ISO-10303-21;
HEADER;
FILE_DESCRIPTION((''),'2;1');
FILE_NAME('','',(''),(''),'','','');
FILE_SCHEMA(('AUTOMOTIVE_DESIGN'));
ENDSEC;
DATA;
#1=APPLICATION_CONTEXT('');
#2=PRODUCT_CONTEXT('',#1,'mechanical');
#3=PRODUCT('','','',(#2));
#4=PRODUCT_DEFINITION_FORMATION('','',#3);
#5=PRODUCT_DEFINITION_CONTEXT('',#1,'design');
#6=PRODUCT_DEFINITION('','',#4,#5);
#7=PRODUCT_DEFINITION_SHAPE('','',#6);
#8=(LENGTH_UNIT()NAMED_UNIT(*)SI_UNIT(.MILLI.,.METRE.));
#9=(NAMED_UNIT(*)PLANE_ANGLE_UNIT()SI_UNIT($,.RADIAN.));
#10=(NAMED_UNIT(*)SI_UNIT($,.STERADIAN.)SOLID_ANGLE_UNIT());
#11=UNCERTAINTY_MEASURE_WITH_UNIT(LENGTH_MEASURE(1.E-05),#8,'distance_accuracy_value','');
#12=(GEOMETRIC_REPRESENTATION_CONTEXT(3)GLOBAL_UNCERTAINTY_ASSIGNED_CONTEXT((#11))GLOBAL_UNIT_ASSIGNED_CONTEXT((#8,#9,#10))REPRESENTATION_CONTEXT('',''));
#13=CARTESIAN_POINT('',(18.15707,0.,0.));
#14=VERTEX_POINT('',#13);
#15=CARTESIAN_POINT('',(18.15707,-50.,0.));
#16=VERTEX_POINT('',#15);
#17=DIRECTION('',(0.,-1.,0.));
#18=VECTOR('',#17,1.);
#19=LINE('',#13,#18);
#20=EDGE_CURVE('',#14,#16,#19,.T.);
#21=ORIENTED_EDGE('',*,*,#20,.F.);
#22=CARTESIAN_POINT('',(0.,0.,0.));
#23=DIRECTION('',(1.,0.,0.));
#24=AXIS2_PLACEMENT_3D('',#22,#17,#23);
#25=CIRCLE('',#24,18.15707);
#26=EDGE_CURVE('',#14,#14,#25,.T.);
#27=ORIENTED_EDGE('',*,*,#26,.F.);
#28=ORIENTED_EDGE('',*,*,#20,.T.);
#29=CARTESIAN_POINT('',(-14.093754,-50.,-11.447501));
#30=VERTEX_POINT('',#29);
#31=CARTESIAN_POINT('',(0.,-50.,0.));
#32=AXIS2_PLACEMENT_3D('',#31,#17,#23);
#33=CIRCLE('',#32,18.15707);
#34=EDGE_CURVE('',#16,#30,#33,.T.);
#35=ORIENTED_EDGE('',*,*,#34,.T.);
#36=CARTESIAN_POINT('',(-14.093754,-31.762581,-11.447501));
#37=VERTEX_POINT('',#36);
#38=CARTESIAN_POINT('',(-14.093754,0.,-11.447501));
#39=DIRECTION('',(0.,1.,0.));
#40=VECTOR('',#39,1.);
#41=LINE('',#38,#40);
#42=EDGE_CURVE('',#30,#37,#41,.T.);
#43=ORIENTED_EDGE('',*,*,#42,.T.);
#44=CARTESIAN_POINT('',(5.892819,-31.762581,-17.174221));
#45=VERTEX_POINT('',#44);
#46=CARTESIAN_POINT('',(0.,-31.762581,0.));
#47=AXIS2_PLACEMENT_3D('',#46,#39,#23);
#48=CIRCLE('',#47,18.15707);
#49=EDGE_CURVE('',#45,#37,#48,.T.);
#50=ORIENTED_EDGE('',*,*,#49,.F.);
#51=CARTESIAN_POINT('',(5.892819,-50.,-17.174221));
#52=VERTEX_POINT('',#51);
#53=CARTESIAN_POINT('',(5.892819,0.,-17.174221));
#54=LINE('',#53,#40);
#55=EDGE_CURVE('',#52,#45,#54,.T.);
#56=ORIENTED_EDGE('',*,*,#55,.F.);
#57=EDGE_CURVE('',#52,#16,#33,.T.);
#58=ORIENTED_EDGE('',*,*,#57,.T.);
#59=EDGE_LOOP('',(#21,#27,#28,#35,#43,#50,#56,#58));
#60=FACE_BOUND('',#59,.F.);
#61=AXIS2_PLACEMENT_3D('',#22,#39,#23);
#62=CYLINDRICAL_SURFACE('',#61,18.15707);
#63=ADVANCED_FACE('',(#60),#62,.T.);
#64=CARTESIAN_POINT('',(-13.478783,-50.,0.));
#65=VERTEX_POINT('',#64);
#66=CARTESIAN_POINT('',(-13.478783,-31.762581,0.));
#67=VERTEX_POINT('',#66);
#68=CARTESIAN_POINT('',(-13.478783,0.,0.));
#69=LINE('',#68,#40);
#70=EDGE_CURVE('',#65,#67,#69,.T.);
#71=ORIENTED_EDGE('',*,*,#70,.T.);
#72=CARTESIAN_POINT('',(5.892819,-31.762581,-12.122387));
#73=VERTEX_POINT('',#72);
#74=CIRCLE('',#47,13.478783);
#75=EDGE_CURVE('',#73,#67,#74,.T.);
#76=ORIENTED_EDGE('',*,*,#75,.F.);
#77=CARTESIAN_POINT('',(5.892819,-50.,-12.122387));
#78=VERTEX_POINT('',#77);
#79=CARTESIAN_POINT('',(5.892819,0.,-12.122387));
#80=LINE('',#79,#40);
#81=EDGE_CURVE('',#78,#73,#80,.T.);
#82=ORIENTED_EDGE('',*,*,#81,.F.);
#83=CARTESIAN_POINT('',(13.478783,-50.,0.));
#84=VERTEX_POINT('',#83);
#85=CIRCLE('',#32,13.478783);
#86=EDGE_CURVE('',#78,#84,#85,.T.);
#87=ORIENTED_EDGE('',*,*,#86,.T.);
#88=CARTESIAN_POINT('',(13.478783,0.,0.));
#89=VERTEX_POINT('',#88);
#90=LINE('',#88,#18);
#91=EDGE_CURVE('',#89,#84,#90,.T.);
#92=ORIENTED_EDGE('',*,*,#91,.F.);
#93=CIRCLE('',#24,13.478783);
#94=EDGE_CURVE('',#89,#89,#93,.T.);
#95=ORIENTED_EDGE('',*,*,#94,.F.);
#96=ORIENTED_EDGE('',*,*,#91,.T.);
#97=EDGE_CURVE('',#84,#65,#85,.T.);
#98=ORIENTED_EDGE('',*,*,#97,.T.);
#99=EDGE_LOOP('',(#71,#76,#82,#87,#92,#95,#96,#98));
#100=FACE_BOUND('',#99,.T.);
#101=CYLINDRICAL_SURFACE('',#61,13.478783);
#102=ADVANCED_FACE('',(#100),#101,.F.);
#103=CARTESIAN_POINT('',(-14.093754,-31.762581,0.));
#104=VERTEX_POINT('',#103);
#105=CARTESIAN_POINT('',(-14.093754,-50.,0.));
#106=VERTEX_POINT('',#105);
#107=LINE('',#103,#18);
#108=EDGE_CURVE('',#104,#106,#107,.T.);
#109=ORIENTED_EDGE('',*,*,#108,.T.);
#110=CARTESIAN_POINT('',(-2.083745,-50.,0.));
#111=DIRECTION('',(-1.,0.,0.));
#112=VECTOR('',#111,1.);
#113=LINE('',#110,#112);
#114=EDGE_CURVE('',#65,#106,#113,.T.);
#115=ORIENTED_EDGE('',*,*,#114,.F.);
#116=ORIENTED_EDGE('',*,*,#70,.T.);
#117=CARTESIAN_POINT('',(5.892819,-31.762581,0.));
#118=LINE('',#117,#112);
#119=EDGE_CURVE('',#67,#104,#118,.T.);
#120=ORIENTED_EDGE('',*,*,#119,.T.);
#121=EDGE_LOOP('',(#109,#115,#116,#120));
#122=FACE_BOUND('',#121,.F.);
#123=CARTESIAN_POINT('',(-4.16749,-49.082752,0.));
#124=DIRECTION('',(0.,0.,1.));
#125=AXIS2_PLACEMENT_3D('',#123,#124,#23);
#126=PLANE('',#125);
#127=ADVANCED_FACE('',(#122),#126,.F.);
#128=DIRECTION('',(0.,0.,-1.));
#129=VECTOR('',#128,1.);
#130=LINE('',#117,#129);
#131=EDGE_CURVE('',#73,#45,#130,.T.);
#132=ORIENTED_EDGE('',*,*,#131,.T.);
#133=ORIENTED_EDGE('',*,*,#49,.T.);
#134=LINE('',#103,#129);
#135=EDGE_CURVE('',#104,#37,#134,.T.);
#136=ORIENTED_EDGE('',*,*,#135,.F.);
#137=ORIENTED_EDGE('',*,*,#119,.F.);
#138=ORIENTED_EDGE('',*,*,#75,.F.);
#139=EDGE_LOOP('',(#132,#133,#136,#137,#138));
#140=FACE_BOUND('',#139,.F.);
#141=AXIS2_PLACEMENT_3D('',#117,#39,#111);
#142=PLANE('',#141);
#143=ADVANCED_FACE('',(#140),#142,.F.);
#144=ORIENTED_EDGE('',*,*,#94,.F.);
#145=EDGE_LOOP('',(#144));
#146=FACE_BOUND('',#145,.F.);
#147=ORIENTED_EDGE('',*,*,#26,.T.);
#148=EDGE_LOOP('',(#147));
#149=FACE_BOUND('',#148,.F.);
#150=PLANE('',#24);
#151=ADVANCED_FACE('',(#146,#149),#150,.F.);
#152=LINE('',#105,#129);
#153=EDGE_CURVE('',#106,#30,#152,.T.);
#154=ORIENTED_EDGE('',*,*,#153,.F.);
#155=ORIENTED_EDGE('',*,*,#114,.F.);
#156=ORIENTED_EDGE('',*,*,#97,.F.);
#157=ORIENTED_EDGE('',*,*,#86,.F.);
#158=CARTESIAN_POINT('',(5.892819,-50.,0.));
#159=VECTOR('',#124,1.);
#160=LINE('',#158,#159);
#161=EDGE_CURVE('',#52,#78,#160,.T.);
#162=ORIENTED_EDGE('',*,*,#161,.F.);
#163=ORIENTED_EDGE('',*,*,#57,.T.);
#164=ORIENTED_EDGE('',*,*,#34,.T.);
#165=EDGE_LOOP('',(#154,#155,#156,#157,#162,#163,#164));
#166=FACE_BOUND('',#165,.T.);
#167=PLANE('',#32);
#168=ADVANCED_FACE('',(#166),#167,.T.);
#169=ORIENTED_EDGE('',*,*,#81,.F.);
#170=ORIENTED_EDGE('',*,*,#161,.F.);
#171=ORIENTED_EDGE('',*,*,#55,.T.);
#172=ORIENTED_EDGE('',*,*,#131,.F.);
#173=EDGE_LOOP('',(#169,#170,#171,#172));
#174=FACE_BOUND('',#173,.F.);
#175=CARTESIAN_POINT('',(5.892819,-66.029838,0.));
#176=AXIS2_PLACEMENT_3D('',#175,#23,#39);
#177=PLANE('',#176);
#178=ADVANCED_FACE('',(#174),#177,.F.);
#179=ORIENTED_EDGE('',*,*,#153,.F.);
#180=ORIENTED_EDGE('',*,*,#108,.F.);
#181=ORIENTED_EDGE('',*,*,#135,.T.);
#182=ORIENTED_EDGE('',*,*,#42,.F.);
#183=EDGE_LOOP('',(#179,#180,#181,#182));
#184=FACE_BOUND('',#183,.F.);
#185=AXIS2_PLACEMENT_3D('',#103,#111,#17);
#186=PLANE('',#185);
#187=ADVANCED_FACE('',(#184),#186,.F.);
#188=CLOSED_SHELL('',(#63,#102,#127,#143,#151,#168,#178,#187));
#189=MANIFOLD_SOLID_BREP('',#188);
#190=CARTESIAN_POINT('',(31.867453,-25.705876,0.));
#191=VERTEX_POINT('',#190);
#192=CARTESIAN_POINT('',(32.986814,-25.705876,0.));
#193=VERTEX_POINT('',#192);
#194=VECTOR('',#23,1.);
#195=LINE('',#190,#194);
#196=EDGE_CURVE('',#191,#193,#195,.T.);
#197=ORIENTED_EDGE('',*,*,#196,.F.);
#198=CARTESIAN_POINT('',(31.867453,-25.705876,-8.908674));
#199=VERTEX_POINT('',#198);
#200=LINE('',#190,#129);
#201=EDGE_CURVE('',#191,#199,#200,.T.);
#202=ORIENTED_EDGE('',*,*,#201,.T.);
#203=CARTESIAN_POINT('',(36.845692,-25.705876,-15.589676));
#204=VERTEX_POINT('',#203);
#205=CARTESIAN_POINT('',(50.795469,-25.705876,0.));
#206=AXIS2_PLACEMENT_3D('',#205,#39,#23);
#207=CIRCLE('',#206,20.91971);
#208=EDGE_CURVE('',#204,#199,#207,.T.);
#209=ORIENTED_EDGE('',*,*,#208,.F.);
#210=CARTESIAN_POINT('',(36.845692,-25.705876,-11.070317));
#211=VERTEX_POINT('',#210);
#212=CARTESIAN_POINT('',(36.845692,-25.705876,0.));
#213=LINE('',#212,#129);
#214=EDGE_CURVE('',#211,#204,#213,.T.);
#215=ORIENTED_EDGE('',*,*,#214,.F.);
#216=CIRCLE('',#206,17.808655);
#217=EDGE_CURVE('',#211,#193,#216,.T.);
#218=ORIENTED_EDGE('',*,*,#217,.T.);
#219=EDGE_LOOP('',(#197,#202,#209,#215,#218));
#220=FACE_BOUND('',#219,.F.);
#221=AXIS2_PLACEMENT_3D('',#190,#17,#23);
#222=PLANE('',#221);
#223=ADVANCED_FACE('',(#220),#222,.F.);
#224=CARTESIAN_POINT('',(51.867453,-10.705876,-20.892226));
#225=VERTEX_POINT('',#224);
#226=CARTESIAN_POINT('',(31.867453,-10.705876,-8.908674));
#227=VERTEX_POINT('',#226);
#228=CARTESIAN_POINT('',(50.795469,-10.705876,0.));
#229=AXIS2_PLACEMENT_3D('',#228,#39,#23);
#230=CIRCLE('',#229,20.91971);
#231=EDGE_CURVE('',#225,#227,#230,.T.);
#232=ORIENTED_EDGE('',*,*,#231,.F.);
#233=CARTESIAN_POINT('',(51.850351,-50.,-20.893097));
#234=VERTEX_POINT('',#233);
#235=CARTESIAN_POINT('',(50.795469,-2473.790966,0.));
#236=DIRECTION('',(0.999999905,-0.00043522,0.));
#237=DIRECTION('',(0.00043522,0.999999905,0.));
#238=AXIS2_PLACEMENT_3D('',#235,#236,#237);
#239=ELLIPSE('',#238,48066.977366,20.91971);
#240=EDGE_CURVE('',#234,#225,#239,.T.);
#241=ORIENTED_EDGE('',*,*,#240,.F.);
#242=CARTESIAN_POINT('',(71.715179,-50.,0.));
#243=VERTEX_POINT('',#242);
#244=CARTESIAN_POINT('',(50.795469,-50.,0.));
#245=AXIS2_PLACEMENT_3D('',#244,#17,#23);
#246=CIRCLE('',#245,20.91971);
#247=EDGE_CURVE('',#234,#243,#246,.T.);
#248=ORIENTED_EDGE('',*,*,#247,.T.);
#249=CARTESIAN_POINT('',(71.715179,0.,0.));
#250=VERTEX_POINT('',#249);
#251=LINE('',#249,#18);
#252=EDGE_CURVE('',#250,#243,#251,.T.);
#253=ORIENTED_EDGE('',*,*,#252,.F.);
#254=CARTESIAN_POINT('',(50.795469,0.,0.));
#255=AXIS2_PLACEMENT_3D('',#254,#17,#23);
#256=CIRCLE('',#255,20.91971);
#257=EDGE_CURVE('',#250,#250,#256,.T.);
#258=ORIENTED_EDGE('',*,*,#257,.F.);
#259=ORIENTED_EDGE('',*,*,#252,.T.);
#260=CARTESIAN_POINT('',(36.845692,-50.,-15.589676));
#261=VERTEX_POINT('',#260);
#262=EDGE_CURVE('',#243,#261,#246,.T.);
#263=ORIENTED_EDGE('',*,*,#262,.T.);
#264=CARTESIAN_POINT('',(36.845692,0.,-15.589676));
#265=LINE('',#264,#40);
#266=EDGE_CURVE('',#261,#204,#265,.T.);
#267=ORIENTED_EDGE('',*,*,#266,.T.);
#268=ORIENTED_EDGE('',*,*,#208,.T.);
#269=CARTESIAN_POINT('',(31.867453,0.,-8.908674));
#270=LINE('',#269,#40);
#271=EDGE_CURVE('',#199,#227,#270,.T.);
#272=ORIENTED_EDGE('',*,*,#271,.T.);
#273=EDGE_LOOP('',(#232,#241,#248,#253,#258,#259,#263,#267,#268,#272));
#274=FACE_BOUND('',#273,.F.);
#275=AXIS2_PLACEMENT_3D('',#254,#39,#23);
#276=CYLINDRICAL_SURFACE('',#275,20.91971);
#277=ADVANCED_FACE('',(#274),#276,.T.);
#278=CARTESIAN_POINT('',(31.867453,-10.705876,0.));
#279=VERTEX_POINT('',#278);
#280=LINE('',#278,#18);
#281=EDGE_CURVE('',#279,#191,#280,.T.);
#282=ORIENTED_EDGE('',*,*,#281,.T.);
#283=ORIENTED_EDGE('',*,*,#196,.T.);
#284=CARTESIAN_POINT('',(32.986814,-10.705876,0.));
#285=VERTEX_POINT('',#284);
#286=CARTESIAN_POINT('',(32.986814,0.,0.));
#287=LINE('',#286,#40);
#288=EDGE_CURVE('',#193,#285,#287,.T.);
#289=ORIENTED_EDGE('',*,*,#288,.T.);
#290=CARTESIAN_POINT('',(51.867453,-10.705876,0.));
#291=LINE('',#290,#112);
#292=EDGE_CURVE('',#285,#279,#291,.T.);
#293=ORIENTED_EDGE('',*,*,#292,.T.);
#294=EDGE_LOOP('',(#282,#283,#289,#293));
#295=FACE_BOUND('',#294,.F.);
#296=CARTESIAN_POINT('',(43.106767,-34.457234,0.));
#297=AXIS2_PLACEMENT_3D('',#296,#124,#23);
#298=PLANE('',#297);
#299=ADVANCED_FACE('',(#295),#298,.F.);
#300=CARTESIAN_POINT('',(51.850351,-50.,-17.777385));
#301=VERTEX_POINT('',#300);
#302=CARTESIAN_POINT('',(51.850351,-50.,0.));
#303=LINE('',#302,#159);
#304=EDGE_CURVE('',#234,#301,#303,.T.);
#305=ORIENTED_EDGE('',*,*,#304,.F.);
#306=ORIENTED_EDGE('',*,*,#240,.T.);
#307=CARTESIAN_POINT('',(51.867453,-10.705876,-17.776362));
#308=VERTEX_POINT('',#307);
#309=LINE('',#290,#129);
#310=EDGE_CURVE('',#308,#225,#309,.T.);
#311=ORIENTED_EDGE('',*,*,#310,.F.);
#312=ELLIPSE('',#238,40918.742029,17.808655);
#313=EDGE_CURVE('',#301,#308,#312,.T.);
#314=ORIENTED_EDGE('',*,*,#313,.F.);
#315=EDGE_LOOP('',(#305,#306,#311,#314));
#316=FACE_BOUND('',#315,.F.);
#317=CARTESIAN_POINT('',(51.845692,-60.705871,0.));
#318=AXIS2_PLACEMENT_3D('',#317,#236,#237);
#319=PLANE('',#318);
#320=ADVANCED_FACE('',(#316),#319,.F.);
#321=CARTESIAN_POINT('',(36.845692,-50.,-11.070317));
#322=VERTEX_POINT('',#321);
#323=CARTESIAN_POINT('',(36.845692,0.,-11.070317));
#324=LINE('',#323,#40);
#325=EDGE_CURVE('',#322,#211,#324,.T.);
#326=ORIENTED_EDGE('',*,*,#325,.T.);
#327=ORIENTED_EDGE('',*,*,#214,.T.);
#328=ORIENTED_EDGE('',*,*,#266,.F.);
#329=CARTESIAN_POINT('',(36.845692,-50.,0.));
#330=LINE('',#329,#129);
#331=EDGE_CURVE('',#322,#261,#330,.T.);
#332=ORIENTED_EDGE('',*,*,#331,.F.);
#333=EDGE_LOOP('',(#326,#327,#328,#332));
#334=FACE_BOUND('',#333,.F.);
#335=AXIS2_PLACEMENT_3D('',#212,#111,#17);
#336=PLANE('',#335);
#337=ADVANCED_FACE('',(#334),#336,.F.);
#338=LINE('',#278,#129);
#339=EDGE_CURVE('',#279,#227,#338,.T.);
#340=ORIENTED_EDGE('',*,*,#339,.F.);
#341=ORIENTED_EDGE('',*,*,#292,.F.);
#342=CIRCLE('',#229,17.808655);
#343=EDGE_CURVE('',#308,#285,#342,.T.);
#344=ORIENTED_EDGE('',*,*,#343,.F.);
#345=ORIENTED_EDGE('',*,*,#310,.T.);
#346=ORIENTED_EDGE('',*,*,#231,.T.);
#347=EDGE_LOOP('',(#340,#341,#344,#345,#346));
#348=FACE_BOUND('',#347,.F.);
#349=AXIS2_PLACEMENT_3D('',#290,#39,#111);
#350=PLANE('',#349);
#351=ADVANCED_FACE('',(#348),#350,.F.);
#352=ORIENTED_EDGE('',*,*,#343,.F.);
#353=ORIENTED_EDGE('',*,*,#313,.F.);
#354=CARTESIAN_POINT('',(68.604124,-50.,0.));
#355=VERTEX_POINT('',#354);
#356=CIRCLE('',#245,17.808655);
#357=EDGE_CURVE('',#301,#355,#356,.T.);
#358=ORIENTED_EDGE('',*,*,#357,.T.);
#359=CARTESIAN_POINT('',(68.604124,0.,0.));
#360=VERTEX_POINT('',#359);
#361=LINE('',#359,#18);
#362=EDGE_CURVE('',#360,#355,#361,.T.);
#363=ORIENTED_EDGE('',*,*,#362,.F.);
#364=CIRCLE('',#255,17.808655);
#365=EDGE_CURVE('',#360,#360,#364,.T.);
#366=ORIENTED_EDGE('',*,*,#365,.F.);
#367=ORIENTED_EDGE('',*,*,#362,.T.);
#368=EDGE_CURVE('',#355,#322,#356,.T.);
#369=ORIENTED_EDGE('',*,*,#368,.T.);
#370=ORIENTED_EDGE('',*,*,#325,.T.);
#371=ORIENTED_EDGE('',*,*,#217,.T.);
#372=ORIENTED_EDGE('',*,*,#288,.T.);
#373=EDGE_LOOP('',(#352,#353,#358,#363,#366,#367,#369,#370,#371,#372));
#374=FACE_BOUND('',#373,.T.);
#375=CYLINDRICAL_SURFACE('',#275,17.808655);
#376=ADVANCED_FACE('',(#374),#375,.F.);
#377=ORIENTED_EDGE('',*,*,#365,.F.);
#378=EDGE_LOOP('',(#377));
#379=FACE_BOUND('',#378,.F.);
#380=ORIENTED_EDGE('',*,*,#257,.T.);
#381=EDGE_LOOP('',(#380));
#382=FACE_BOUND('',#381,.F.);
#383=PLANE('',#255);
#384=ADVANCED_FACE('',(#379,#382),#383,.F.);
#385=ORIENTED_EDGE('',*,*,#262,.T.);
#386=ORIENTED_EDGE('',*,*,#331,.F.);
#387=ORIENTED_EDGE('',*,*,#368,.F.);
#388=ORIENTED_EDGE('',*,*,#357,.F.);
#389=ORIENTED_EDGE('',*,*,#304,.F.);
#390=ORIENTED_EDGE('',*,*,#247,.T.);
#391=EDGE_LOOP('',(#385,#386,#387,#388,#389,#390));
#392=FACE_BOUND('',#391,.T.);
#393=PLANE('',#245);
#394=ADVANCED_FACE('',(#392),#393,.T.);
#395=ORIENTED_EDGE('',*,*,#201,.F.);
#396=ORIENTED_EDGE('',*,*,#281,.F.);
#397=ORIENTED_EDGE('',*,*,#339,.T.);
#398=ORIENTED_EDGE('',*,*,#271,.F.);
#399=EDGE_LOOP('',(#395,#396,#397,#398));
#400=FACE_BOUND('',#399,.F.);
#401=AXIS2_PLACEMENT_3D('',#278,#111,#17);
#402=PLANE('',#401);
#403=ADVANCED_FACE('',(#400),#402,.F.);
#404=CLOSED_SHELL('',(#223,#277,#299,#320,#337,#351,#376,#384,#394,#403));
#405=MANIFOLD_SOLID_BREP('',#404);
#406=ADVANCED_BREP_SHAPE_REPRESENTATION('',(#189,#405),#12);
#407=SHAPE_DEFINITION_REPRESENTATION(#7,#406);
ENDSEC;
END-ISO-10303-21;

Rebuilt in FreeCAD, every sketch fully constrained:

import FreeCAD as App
import Part
import Sketcher

V = App.Vector
Q = App.Units.Quantity


def add_polygon(sketch, points):
    """Adds a closed chain of lines whose ends are joined by coincident constraints."""
    first, n = sketch.GeometryCount, len(points)
    for a, b in zip(points, points[1:] + points[:1]):
        sketch.addGeometry(Part.LineSegment(App.Vector(*a, 0), App.Vector(*b, 0)), False)
    for i in range(n):
        sketch.addConstraint(Sketcher.Constraint("Coincident", first + i, 2, first + (i + 1) % n, 1))

doc = App.newDocument("Part")
body = doc.addObject("PartDesign::Body", "Body")

sketch1 = body.newObject("Sketcher::SketchObject", "Sketch")
sketch1.AttachmentSupport = (doc.getObject("XZ_Plane"), [""])
sketch1.MapMode = "FlatFace"
sketch1.addGeometry([
    Part.Circle(V(0, 0, 0), V(0, 0, 1), 18),
    Part.Circle(V(0, 0, 0), V(0, 0, 1), 13),
], False)
sketch1.addConstraint([
    Sketcher.Constraint("Coincident", 0, 3, -1, 1),
    Sketcher.Constraint("Coincident", 1, 3, -1, 1),
    Sketcher.Constraint("Diameter", 0, Q("36.31414 mm")),
    Sketcher.Constraint("Diameter", 1, Q("26.957566 mm")),
])
pad1 = body.newObject("PartDesign::Pad", "Pad")
pad1.Profile = sketch1
pad1.Length = 50

sketch2 = body.newObject("Sketcher::SketchObject", "Sketch001")
sketch2.AttachmentSupport = (doc.getObject("XY_Plane"), [""])
sketch2.MapMode = "FlatFace"
add_polygon(sketch2, [(-14, -32), (-14, -67), (6, -66), (6, -32)])
sketch2.addConstraint([
    Sketcher.Constraint("Vertical", 0),
    Sketcher.Constraint("Vertical", 2),
    Sketcher.Constraint("Horizontal", 3),
    Sketcher.Constraint("DistanceY", 0, 2, 0, 1, Q("35 mm")),
    Sketcher.Constraint("Distance", 1, Q("20 mm")),
    Sketcher.Constraint("DistanceX", 3, 2, 3, 1, Q("19.986573 mm")),
    Sketcher.Constraint("DistanceY", 0, 2, -1, 1, Q("66.762581 mm")),
    Sketcher.Constraint("DistanceX", -1, 1, 1, 2, Q("5.892819 mm")),
])
pocket1 = body.newObject("PartDesign::Pocket", "Pocket")
pocket1.Profile = sketch2
pocket1.Length = 25
body2 = doc.addObject("PartDesign::Body", "Body001")

sketch3 = body2.newObject("Sketcher::SketchObject", "Sketch002")
sketch3.AttachmentSupport = (doc.getObject("XZ_Plane001"), [""])
sketch3.MapMode = "FlatFace"
sketch3.addGeometry([
    Part.Circle(V(51, 0, 0), V(0, 0, 1), 21),
    Part.Circle(V(51, 0, 0), V(0, 0, 1), 18),
], False)
sketch3.addConstraint([
    Sketcher.Constraint("Coincident", 1, 3, 0, 3),
    Sketcher.Constraint("PointOnObject", 0, 3, -1),
    Sketcher.Constraint("Diameter", 0, Q("41.83942 mm")),
    Sketcher.Constraint("Diameter", 1, Q("35.61731 mm")),
    Sketcher.Constraint("DistanceX", -1, 1, 0, 3, Q("50.795469 mm")),
])
pad2 = body2.newObject("PartDesign::Pad", "Pad001")
pad2.Profile = sketch3
pad2.Length = 50

sketch4 = body2.newObject("Sketcher::SketchObject", "Sketch003")
sketch4.AttachmentSupport = (doc.getObject("XY_Plane001"), [""])
sketch4.MapMode = "FlatFace"
add_polygon(sketch4, [(36.8, -60.7), (51.8, -60.7), (51.9, -10.7), (31.9, -10.7), (31.9, -25.7), (36.8, -25.7)])
sketch4.addConstraint([
    Sketcher.Constraint("Horizontal", 0),
    Sketcher.Constraint("Horizontal", 2),
    Sketcher.Constraint("Vertical", 3),
    Sketcher.Constraint("Horizontal", 4),
    Sketcher.Constraint("Vertical", 5),
    Sketcher.Constraint("Equal", 0, 3),
    Sketcher.Constraint("DistanceX", 0, 1, 0, 2, Q("15 mm")),
    Sketcher.Constraint("DistanceX", 2, 2, 2, 1, Q("20 mm")),
    Sketcher.Constraint("Distance", 1, Q("50 mm")),
    Sketcher.Constraint("DistanceX", 4, 1, 4, 2, Q("4.978239 mm")),
    Sketcher.Constraint("DistanceY", 0, 2, -1, 1, Q("60.705871 mm")),
    Sketcher.Constraint("DistanceX", -1, 1, 0, 2, Q("51.845692 mm")),
])
pocket2 = body2.newObject("PartDesign::Pocket", "Pocket001")
pocket2.Profile = sketch4
pocket2.Length = 25

doc.recompute()
